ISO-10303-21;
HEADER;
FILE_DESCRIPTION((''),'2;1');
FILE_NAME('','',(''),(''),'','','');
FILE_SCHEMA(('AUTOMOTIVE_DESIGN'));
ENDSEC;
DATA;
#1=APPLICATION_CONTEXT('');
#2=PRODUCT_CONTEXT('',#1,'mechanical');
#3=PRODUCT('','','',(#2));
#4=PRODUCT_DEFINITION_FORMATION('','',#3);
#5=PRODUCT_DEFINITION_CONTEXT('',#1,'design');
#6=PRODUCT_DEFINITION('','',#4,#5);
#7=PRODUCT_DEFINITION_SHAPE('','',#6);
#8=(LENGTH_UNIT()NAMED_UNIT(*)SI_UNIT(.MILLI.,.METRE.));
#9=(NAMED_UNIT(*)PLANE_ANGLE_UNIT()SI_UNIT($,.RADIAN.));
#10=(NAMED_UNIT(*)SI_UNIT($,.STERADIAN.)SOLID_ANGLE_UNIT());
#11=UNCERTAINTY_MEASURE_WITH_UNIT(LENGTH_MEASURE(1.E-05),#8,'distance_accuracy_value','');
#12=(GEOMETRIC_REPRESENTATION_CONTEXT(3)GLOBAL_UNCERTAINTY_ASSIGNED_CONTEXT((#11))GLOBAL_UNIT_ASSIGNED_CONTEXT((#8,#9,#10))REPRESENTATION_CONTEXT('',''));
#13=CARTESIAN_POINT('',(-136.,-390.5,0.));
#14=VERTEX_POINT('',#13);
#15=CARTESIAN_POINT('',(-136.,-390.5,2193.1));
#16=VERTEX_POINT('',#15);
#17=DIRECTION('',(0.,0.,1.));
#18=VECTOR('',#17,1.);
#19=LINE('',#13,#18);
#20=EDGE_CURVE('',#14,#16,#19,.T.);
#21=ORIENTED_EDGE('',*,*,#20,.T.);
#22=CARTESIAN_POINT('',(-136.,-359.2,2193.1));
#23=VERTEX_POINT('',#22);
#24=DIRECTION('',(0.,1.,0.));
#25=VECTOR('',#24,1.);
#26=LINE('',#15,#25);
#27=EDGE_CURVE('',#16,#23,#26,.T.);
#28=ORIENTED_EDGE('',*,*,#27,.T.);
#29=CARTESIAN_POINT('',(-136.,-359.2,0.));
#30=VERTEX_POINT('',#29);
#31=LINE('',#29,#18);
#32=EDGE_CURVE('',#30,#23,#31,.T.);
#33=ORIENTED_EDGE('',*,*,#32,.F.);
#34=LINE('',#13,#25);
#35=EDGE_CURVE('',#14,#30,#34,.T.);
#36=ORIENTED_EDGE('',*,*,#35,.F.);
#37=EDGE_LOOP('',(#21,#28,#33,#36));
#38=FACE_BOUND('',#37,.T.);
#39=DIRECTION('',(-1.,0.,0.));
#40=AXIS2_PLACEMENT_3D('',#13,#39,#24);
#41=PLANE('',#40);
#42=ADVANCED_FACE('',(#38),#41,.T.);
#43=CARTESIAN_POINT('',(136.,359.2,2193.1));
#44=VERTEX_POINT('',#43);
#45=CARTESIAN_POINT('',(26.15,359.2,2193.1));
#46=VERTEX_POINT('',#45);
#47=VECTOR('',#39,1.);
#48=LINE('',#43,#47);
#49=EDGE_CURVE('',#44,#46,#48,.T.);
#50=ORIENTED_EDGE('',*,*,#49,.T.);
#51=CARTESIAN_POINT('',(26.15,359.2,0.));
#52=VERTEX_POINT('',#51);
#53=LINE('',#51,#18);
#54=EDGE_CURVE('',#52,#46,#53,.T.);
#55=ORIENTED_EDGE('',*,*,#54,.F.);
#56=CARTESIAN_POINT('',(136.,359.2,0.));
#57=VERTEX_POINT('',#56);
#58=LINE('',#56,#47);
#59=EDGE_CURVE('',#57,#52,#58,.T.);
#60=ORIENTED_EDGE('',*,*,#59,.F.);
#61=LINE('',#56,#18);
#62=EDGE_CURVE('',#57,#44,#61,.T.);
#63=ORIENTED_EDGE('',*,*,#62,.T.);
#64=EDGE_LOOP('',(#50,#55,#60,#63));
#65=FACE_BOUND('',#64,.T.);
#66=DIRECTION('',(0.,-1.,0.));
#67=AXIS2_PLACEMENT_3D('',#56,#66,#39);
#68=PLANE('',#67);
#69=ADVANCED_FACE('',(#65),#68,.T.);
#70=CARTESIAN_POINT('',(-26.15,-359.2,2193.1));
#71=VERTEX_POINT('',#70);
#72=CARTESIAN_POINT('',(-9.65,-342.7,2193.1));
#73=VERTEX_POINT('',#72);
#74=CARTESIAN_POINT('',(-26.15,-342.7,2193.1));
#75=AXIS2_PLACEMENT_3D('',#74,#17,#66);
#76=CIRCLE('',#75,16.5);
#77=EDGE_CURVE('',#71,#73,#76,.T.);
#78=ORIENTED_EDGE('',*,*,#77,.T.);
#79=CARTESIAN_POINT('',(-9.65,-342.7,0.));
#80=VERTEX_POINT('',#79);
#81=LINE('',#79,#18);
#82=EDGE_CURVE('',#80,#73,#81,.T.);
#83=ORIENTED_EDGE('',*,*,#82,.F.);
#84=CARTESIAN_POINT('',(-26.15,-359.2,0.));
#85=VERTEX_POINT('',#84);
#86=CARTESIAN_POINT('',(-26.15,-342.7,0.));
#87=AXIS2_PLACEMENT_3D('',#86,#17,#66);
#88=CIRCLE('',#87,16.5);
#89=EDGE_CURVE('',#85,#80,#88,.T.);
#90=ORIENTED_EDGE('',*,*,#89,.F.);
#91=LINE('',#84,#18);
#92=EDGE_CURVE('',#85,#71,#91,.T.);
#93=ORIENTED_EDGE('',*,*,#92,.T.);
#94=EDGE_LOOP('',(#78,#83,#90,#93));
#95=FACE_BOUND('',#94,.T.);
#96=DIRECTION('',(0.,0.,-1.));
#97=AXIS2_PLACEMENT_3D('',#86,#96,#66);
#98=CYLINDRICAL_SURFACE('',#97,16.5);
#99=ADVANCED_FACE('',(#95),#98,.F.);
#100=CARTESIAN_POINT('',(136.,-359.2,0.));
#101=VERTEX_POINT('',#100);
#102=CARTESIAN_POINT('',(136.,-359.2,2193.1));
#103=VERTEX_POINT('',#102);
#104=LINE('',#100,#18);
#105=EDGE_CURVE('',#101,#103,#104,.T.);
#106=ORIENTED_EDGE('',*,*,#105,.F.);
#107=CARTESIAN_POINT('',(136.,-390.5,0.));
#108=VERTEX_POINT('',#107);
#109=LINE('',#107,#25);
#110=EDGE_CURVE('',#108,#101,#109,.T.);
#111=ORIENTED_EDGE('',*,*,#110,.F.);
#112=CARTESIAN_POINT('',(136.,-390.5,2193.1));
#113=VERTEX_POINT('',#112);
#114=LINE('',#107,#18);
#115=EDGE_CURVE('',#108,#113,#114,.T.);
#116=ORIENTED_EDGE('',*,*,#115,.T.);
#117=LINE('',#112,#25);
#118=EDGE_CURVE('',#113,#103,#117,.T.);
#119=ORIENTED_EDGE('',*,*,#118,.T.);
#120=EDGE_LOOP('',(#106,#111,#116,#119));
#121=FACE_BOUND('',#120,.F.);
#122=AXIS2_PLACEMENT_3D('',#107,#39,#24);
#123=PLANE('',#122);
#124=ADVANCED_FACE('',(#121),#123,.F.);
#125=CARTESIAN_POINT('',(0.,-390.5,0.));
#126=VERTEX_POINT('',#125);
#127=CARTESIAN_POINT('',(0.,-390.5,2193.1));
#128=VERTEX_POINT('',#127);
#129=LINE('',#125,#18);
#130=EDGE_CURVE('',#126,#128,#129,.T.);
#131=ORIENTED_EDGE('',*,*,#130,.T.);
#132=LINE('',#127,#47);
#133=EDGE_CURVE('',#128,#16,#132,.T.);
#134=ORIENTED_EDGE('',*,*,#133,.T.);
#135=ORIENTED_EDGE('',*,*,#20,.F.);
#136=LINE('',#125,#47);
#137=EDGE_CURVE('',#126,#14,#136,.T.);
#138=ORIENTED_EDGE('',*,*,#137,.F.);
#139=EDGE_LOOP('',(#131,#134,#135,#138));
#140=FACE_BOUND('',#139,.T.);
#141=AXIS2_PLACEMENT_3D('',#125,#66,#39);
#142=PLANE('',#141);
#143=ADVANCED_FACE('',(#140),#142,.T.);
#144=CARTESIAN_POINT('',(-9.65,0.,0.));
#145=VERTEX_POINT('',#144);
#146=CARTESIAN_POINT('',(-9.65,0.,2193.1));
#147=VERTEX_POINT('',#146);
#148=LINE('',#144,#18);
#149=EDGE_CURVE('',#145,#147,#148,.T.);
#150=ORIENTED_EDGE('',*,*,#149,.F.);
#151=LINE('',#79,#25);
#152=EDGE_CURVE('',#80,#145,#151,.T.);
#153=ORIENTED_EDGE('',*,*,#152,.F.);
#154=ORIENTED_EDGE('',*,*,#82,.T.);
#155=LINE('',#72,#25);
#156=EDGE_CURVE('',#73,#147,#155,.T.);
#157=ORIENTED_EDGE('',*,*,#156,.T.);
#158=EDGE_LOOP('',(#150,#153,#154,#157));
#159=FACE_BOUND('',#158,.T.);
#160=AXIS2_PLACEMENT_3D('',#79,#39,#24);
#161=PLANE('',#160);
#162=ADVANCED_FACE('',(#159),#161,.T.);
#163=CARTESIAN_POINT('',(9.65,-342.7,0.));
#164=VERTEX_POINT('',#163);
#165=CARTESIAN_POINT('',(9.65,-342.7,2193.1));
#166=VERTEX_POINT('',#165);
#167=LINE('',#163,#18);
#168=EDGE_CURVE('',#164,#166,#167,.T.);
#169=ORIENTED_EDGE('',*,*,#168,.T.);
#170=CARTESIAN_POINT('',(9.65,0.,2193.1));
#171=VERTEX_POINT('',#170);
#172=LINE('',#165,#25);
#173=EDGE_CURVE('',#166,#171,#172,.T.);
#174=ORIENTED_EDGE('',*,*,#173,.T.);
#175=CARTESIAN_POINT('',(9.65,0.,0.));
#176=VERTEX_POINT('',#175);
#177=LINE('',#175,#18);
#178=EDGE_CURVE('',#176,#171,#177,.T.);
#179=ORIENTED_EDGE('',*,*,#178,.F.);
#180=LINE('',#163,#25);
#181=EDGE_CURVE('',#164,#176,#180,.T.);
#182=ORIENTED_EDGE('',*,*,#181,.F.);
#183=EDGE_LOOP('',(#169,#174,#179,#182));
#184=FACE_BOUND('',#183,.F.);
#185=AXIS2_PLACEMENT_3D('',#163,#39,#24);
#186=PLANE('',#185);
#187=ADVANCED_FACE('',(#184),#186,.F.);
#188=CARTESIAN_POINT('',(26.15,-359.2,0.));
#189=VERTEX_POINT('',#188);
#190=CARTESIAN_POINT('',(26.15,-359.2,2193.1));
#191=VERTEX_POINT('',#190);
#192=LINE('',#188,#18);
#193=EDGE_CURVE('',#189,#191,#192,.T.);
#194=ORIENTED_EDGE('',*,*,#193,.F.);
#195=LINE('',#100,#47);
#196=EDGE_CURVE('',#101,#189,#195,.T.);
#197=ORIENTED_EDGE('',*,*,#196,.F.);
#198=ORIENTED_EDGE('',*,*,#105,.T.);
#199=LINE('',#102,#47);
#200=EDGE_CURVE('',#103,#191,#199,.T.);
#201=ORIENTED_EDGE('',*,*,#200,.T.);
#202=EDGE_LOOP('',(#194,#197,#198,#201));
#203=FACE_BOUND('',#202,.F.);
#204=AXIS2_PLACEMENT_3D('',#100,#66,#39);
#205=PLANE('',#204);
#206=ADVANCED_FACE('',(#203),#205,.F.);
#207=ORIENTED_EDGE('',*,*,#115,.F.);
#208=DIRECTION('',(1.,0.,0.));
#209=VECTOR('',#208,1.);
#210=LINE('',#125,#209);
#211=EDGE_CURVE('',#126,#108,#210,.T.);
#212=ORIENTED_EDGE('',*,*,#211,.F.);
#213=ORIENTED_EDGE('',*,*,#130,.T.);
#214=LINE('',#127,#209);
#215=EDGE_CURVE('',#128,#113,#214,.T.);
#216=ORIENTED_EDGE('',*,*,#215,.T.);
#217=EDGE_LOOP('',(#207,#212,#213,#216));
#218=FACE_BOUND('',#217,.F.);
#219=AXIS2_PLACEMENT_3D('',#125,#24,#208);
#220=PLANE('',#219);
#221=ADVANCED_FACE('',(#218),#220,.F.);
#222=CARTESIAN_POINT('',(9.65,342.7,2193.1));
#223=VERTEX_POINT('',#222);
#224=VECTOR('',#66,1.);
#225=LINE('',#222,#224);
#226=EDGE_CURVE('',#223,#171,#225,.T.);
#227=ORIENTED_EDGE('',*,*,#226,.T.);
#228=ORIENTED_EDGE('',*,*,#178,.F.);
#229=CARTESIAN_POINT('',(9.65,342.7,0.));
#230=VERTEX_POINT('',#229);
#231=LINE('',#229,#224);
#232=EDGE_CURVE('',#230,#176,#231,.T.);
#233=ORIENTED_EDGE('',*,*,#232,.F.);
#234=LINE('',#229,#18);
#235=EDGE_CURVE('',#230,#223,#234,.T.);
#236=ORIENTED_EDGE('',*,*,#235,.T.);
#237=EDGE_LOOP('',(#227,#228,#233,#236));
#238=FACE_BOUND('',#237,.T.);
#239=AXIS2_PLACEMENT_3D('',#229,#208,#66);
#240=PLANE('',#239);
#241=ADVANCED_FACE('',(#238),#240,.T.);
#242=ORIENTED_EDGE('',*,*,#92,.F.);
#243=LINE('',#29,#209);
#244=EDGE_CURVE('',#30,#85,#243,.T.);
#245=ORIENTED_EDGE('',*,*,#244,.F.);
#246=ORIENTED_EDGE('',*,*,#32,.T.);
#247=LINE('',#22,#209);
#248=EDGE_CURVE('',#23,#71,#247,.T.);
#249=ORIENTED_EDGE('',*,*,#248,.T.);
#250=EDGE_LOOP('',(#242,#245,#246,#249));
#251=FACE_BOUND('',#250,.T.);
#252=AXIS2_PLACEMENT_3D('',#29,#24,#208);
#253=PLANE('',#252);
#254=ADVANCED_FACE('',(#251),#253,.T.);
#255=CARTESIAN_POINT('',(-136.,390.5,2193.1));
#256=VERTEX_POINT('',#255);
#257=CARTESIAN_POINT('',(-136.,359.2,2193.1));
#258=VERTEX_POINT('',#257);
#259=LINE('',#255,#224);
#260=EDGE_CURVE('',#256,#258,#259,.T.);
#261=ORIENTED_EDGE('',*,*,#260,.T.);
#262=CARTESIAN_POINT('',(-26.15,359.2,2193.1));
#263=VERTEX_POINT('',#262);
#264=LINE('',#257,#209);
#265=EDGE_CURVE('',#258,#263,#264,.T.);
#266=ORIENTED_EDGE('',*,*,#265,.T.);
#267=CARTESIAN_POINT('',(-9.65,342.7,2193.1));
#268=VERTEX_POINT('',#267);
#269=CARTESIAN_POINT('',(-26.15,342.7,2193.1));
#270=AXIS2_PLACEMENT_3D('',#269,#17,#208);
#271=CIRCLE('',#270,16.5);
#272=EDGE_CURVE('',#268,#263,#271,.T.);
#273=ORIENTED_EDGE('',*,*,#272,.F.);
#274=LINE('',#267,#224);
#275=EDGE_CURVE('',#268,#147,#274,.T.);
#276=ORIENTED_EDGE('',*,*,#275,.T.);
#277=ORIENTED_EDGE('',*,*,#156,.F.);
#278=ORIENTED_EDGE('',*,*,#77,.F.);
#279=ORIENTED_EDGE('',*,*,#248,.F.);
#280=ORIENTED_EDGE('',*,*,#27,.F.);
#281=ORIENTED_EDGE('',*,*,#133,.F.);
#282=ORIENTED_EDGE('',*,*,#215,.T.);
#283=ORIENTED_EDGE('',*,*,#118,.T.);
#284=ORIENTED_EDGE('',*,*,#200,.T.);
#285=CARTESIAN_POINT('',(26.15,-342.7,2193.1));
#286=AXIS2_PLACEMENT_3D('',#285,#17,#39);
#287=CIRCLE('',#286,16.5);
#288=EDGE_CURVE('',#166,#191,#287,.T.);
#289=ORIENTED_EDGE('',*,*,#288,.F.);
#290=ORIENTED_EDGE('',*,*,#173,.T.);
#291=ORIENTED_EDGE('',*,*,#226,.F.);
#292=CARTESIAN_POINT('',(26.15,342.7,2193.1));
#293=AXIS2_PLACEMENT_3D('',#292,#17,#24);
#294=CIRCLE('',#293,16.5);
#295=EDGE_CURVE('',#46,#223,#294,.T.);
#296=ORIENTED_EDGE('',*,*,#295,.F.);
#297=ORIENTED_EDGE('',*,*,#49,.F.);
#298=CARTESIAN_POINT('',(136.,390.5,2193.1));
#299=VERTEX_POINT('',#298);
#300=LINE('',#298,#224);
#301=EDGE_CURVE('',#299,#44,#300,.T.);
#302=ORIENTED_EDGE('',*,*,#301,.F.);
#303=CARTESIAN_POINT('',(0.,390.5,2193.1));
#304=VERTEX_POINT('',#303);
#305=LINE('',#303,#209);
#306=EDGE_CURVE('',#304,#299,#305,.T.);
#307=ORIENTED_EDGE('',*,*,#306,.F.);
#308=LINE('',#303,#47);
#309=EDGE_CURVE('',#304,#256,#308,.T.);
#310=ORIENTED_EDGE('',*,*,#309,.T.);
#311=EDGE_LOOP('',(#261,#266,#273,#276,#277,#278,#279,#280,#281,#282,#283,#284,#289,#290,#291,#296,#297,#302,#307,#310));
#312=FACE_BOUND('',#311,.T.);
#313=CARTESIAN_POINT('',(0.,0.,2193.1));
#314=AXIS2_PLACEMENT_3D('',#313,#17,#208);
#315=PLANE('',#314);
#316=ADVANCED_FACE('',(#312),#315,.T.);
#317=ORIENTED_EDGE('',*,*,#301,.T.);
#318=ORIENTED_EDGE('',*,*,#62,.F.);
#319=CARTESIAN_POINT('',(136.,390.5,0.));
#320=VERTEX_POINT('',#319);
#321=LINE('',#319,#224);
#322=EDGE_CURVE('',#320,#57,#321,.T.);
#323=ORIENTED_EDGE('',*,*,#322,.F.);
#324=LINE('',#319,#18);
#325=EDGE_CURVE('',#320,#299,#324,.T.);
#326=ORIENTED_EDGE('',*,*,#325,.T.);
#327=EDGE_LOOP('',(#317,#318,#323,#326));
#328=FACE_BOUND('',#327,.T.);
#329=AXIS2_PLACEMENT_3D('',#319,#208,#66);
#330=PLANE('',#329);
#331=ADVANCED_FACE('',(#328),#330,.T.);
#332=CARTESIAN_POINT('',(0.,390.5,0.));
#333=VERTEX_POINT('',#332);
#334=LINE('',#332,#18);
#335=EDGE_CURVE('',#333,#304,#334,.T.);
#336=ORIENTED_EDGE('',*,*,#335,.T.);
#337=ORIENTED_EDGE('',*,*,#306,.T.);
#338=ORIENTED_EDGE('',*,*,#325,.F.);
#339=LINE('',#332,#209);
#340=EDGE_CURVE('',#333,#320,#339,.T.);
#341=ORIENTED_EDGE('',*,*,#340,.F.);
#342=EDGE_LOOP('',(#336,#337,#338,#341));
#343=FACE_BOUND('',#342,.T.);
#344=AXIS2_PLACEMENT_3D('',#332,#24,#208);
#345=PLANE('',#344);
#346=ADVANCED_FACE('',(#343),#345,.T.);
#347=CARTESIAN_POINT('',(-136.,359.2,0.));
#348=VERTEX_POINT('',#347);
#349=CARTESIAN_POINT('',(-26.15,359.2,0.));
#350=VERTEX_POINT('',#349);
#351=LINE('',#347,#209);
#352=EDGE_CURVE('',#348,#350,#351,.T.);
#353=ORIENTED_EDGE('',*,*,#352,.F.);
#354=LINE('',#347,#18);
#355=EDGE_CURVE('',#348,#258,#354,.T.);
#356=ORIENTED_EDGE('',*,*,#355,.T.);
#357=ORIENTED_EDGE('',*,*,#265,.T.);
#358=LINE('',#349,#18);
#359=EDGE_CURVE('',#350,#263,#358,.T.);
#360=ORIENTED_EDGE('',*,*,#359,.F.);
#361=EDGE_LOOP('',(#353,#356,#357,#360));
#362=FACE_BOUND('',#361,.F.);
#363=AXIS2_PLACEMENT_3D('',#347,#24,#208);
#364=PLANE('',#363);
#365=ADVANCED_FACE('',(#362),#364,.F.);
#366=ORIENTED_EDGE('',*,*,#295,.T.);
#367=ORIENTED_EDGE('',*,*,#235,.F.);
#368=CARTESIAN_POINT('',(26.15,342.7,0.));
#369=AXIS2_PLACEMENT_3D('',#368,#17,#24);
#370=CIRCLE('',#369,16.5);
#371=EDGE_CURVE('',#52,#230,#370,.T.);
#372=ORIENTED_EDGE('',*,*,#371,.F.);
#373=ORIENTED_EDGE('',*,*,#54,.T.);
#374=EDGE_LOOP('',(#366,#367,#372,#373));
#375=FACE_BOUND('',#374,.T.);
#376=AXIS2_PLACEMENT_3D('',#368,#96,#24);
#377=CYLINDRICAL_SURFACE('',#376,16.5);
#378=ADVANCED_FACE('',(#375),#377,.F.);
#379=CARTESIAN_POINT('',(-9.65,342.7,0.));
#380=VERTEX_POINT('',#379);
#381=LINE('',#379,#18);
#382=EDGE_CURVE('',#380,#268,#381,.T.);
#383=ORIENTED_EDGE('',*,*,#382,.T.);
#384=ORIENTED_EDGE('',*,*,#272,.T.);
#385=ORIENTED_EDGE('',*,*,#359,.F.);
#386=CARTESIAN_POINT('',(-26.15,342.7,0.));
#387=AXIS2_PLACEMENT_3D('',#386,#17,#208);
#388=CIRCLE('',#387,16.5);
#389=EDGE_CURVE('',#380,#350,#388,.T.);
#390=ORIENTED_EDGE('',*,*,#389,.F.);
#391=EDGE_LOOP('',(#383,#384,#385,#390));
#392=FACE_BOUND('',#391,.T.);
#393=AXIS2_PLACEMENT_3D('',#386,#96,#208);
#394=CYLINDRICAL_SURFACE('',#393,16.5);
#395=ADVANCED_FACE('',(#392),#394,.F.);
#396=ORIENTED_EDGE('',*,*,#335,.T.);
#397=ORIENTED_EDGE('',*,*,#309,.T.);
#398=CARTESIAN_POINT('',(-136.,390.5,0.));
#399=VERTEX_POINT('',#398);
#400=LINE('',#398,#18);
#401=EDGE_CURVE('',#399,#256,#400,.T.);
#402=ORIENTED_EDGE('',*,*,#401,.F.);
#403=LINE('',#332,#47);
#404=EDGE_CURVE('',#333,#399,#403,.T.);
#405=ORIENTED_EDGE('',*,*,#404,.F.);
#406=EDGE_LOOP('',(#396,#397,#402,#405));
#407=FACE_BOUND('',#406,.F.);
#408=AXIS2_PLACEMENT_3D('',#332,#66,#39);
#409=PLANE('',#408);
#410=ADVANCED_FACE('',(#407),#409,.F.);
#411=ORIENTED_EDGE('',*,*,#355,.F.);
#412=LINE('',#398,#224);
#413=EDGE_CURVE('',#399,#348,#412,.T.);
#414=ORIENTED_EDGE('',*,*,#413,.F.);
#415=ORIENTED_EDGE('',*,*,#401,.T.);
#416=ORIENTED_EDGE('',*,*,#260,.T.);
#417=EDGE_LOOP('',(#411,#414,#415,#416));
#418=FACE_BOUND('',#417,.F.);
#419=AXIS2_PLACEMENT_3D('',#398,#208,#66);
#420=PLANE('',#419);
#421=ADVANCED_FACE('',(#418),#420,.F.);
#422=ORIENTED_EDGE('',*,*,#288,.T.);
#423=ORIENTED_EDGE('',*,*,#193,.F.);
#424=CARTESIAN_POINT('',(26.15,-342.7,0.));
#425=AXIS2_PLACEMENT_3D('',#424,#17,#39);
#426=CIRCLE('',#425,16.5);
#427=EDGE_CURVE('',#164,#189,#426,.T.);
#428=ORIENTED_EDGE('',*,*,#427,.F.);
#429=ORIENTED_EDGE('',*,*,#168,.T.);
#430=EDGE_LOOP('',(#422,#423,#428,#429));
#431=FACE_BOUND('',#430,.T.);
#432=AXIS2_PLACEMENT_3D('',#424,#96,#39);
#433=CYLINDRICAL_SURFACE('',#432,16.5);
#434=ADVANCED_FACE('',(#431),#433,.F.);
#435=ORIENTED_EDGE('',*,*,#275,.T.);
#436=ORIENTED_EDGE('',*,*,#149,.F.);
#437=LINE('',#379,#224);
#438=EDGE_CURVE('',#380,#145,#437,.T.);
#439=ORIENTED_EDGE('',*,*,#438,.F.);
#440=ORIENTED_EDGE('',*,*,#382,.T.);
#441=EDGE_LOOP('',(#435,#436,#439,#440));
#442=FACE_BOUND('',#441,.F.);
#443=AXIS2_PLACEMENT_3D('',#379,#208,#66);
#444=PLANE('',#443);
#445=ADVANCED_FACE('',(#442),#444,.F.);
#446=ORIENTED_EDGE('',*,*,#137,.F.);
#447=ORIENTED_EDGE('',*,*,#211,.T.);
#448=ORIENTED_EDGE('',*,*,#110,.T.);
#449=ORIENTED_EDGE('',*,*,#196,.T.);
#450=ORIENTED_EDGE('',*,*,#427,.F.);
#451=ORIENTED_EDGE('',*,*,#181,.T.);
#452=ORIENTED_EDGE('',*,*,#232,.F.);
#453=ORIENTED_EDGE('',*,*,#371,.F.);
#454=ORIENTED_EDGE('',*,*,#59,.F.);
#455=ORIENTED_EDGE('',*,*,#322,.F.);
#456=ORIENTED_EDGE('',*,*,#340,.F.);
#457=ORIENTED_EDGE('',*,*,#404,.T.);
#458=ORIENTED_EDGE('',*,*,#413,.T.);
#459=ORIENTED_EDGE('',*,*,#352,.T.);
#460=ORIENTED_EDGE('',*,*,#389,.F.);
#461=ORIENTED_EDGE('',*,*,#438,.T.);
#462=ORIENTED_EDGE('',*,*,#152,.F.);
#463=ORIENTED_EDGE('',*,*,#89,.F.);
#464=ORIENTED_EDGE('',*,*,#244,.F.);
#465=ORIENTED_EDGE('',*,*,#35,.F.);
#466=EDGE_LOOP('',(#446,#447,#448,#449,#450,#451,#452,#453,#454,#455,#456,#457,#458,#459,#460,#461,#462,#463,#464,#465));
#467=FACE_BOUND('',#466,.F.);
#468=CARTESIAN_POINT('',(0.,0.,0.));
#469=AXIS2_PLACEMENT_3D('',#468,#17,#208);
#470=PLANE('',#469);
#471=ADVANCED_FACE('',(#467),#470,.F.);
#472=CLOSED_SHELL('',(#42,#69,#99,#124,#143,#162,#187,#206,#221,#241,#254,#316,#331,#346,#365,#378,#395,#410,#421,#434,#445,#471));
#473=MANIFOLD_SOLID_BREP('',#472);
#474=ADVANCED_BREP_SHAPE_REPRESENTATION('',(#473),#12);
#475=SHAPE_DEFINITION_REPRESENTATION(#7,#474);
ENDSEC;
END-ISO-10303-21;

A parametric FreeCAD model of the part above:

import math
import FreeCAD as App
import Part
import Sketcher

doc = App.newDocument("Part")
body = doc.addObject("PartDesign::Body", "Body")

# Sketch on XY plane
sketch1 = body.newObject("Sketcher::SketchObject", "Sketch")
sketch1.AttachmentSupport = (doc.getObject("XY_Plane"), [""])
sketch1.MapMode = "FlatFace"
sketch1.addGeometry([
    Part.LineSegment(App.Vector(-136, -359, 0), App.Vector(-136, -390, 0)),  # 0
    Part.LineSegment(App.Vector(-136, -390, 0), App.Vector(136, -390, 0)),  # 1
    Part.LineSegment(App.Vector(136, -390, 0), App.Vector(136, -359, 0)),  # 2
    Part.LineSegment(App.Vector(136, -359, 0), App.Vector(26, -359, 0)),  # 3
    Part.ArcOfCircle(Part.Circle(App.Vector(26, -343, 0), App.Vector(0, 0, 1), 16), math.radians(180), math.radians(270)),  # 4
    Part.LineSegment(App.Vector(10, -343, 0), App.Vector(10, 343, 0)),  # 5
    Part.ArcOfCircle(Part.Circle(App.Vector(26, 343, 0), App.Vector(0, 0, 1), 16), math.radians(90), math.radians(180)),  # 6
    Part.LineSegment(App.Vector(26, 359, 0), App.Vector(136, 359, 0)),  # 7
    Part.LineSegment(App.Vector(136, 359, 0), App.Vector(136, 390, 0)),  # 8
    Part.LineSegment(App.Vector(136, 390, 0), App.Vector(-136, 390, 0)),  # 9
    Part.LineSegment(App.Vector(-136, 390, 0), App.Vector(-136, 359, 0)),  # 10
    Part.LineSegment(App.Vector(-136, 359, 0), App.Vector(-26, 359, 0)),  # 11
    Part.ArcOfCircle(Part.Circle(App.Vector(-26, 343, 0), App.Vector(0, 0, 1), 16), math.radians(0), math.radians(90)),  # 12
    Part.LineSegment(App.Vector(-10, 343, 0), App.Vector(-10, -343, 0)),  # 13
    Part.ArcOfCircle(Part.Circle(App.Vector(-26, -343, 0), App.Vector(0, 0, 1), 16), math.radians(-90), math.radians(0)),  # 14
    Part.LineSegment(App.Vector(-26, -359, 0), App.Vector(-136, -359, 0)),  # 15
], False)
sketch1.addConstraint([
    Sketcher.Constraint("Coincident", 0, 2, 1, 1),
    Sketcher.Constraint("Coincident", 1, 2, 2, 1),
    Sketcher.Constraint("Coincident", 2, 2, 3, 1),
    Sketcher.Constraint("Tangent", 3, 2, 4, 2),
    Sketcher.Constraint("Tangent", 4, 1, 5, 1),
    Sketcher.Constraint("Tangent", 5, 2, 6, 2),
    Sketcher.Constraint("Tangent", 6, 1, 7, 1),
    Sketcher.Constraint("Coincident", 7, 2, 8, 1),
    Sketcher.Constraint("Coincident", 8, 2, 9, 1),
    Sketcher.Constraint("Coincident", 9, 2, 10, 1),
    Sketcher.Constraint("Coincident", 10, 2, 11, 1),
    Sketcher.Constraint("Tangent", 11, 2, 12, 2),
    Sketcher.Constraint("Tangent", 12, 1, 13, 1),
    Sketcher.Constraint("Tangent", 13, 2, 14, 2),
    Sketcher.Constraint("Tangent", 14, 1, 15, 1),
    Sketcher.Constraint("Coincident", 15, 2, 0, 1),
    Sketcher.Constraint("Vertical", 0),
    Sketcher.Constraint("Horizontal", 1),
    Sketcher.Constraint("Vertical", 2),
    Sketcher.Constraint("Horizontal", 3),
    Sketcher.Constraint("Vertical", 5),
    Sketcher.Constraint("Horizontal", 7),
    Sketcher.Constraint("Vertical", 8),
    Sketcher.Constraint("Horizontal", 9),
    Sketcher.Constraint("Vertical", 10),
    Sketcher.Constraint("Horizontal", 11),
    Sketcher.Constraint("Vertical", 13),
    Sketcher.Constraint("Horizontal", 15),
    Sketcher.Constraint("Equal", 4, 6),
    Sketcher.Constraint("Equal", 6, 12),
    Sketcher.Constraint("Equal", 12, 14),
    Sketcher.Constraint("Symmetric", 4, 3, 12, 3, -1, 1),
    Sketcher.Constraint("Symmetric", 0, 2, 8, 2, -1, 1),
    Sketcher.Constraint("Symmetric", 7, 2, 10, 2, -2),
    Sketcher.Constraint("Symmetric", 2, 2, 15, 2, -2),
    Sketcher.Constraint("Radius", 4, 16.5),
    Sketcher.Constraint("DistanceY", 0, 2, 0, 1, 31.3),
    Sketcher.Constraint("DistanceX", 0, 2, -1, 1, 136.0),
    Sketcher.Constraint("DistanceY", 0, 2, -1, 1, 390.5),
    Sketcher.Constraint("DistanceX", -1, 1, 4, 1, 9.65),
])
pad1 = body.newObject("PartDesign::Pad", "Pad")
pad1.Profile = sketch1
pad1.Length = 2193.1

doc.recompute()
